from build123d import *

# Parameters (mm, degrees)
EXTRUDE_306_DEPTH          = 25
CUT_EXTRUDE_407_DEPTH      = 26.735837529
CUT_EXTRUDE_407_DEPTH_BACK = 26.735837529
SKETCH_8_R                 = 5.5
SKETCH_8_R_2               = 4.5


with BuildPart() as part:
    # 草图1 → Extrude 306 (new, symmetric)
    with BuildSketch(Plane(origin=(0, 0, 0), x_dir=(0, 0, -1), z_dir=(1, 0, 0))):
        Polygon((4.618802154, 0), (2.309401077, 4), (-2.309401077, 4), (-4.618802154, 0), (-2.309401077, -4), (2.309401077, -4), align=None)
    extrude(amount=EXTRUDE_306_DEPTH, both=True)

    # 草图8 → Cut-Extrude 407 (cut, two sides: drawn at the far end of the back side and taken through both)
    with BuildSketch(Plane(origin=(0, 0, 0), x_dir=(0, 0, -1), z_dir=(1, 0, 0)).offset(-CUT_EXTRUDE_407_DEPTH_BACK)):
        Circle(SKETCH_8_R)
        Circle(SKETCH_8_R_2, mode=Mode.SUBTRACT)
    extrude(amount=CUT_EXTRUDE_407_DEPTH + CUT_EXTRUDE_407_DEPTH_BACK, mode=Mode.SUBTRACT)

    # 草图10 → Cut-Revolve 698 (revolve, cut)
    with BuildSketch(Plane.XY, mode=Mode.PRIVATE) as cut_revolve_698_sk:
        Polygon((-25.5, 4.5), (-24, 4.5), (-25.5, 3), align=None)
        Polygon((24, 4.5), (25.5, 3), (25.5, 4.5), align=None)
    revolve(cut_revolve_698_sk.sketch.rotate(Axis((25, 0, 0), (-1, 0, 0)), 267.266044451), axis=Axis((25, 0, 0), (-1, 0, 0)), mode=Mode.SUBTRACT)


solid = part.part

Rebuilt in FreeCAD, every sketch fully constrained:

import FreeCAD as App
import Part
import Sketcher
Q = App.Units.Quantity

doc = App.newDocument("Part")
params = doc.addObject("Spreadsheet::Sheet", "Params")
for row, (alias, value) in enumerate([
    ("pad1_length", "50 mm"),
    ("sketch2_diameter", "11 mm"),
    ("sketch2_diameter2", "9 mm"),
    ("sketch3_width", "1.5 mm"),
    ("groove_angle", "360 deg"),
], start=1):
    params.set(f"A{row}", alias)
    params.set(f"B{row}", "=" + value)
    params.setAlias(f"B{row}", alias)

body = doc.addObject("PartDesign::Body", "Body")

sketch1 = body.newObject("Sketcher::SketchObject", "Sketch")
sketch1.AttachmentSupport = (doc.getObject("YZ_Plane"), [""])
sketch1.MapMode = "FlatFace"
sketch1.addGeometry([
    Part.LineSegment(App.Vector(0, -4.6, 0), App.Vector(4, -2.3, 0)),
    Part.LineSegment(App.Vector(4, -2.3, 0), App.Vector(4, 2.3, 0)),
    Part.LineSegment(App.Vector(4, 2.3, 0), App.Vector(0, 4.6, 0)),
    Part.LineSegment(App.Vector(0, 4.6, 0), App.Vector(-4, 2.3, 0)),
    Part.LineSegment(App.Vector(-4, 2.3, 0), App.Vector(-4, -2.3, 0)),
    Part.LineSegment(App.Vector(-4, -2.3, 0), App.Vector(0, -4.6, 0)),
], False)
sketch1.addConstraint([
    Sketcher.Constraint("Coincident", 0, 2, 1, 1),
    Sketcher.Constraint("Coincident", 1, 2, 2, 1),
    Sketcher.Constraint("Coincident", 2, 2, 3, 1),
    Sketcher.Constraint("Coincident", 3, 2, 4, 1),
    Sketcher.Constraint("Coincident", 4, 2, 5, 1),
    Sketcher.Constraint("Coincident", 5, 2, 0, 1),
    Sketcher.Constraint("Vertical", 1),
    Sketcher.Constraint("Vertical", 4),
    Sketcher.Constraint("Symmetric", 0, 2, 3, 2, -1, 1),
    Sketcher.Constraint("Symmetric", 2, 2, 5, 2, -1, 1),
    Sketcher.Constraint("PointOnObject", 2, 2, -2),
    Sketcher.Constraint("Parallel", 2, 5),
    Sketcher.Constraint("Horizontal", 1, 2, 3, 2),
    Sketcher.Constraint("Angle", 0, Q("30 deg")),
    Sketcher.Constraint("DistanceX", -1, 1, 0, 2, Q("4 mm")),
    Sketcher.Constraint("DistanceY", 0, 2, -1, 1, Q("2.309401 mm")),
])
pad1 = body.newObject("PartDesign::Pad", "Pad")
pad1.Profile = sketch1
pad1.setExpression("Length", "Params.pad1_length")
pad1.Midplane = True

sketch2 = body.newObject("Sketcher::SketchObject", "Sketch001")
sketch2.AttachmentSupport = (doc.getObject("YZ_Plane"), [""])
sketch2.MapMode = "FlatFace"
sketch2.addGeometry([
    Part.Circle(App.Vector(0, 0, 0), App.Vector(0, 0, 1), 5.5),
    Part.Circle(App.Vector(0, 0, 0), App.Vector(0, 0, 1), 4.5),
], False)
sketch2.addConstraint([
    Sketcher.Constraint("Coincident", 0, 3, -1, 1),
    Sketcher.Constraint("Coincident", 1, 3, -1, 1),
    Sketcher.Constraint("Diameter", 0, Q("11 mm")),
    Sketcher.Constraint("Diameter", 1, Q("9 mm")),
])
sketch2.setExpression("Constraints[2]", "Params.sketch2_diameter")
sketch2.setExpression("Constraints[3]", "Params.sketch2_diameter2")
pocket1 = body.newObject("PartDesign::Pocket", "Pocket")
pocket1.Profile = sketch2
pocket1.Type = "ThroughAll"
pocket1.Midplane = True

sketch3 = body.newObject("Sketcher::SketchObject", "Sketch002")
sketch3.AttachmentSupport = (doc.getObject("XY_Plane"), [""])
sketch3.MapMode = "FlatFace"
sketch3.addGeometry([
    Part.LineSegment(App.Vector(-24, 4.5, 0), App.Vector(-25.5, 4.5, 0)),
    Part.LineSegment(App.Vector(-25.5, 4.5, 0), App.Vector(-25.5, 3, 0)),
    Part.LineSegment(App.Vector(-25.5, 3, 0), App.Vector(-24, 4.5, 0)),
    Part.LineSegment(App.Vector(24, 4.5, 0), App.Vector(25.5, 3, 0)),
    Part.LineSegment(App.Vector(25.5, 3, 0), App.Vector(25.5, 4.5, 0)),
    Part.LineSegment(App.Vector(25.5, 4.5, 0), App.Vector(24, 4.5, 0)),
], False)
sketch3.addConstraint([
    Sketcher.Constraint("Coincident", 0, 2, 1, 1),
    Sketcher.Constraint("Coincident", 1, 2, 2, 1),
    Sketcher.Constraint("Coincident", 2, 2, 0, 1),
    Sketcher.Constraint("Coincident", 3, 2, 4, 1),
    Sketcher.Constraint("Coincident", 4, 2, 5, 1),
    Sketcher.Constraint("Coincident", 5, 2, 3, 1),
    Sketcher.Constraint("Horizontal", 0),
    Sketcher.Constraint("Vertical", 1),
    Sketcher.Constraint("Vertical", 4),
    Sketcher.Constraint("Horizontal", 5),
    Sketcher.Constraint("Symmetric", 1, 2, 3, 2, -2),
    Sketcher.Constraint("Symmetric", 2, 2, 5, 2, -2),
    Sketcher.Constraint("Perpendicular", 2, 3),
    Sketcher.Constraint("DistanceX", 0, 2, 0, 1, Q("1.5 mm")),
    Sketcher.Constraint("DistanceY", -1, 1, 1, 2, Q("3 mm")),
    Sketcher.Constraint("DistanceX", 2, 2, -1, 1, Q("24 mm")),
])
sketch3.setExpression("Constraints[13]", "Params.sketch3_width")
groove = body.newObject("PartDesign::Groove", "Groove")
groove.Profile = sketch3
groove.ReferenceAxis = (sketch3, ["H_Axis"])
groove.setExpression("Angle", "Params.groove_angle")

doc.recompute()
